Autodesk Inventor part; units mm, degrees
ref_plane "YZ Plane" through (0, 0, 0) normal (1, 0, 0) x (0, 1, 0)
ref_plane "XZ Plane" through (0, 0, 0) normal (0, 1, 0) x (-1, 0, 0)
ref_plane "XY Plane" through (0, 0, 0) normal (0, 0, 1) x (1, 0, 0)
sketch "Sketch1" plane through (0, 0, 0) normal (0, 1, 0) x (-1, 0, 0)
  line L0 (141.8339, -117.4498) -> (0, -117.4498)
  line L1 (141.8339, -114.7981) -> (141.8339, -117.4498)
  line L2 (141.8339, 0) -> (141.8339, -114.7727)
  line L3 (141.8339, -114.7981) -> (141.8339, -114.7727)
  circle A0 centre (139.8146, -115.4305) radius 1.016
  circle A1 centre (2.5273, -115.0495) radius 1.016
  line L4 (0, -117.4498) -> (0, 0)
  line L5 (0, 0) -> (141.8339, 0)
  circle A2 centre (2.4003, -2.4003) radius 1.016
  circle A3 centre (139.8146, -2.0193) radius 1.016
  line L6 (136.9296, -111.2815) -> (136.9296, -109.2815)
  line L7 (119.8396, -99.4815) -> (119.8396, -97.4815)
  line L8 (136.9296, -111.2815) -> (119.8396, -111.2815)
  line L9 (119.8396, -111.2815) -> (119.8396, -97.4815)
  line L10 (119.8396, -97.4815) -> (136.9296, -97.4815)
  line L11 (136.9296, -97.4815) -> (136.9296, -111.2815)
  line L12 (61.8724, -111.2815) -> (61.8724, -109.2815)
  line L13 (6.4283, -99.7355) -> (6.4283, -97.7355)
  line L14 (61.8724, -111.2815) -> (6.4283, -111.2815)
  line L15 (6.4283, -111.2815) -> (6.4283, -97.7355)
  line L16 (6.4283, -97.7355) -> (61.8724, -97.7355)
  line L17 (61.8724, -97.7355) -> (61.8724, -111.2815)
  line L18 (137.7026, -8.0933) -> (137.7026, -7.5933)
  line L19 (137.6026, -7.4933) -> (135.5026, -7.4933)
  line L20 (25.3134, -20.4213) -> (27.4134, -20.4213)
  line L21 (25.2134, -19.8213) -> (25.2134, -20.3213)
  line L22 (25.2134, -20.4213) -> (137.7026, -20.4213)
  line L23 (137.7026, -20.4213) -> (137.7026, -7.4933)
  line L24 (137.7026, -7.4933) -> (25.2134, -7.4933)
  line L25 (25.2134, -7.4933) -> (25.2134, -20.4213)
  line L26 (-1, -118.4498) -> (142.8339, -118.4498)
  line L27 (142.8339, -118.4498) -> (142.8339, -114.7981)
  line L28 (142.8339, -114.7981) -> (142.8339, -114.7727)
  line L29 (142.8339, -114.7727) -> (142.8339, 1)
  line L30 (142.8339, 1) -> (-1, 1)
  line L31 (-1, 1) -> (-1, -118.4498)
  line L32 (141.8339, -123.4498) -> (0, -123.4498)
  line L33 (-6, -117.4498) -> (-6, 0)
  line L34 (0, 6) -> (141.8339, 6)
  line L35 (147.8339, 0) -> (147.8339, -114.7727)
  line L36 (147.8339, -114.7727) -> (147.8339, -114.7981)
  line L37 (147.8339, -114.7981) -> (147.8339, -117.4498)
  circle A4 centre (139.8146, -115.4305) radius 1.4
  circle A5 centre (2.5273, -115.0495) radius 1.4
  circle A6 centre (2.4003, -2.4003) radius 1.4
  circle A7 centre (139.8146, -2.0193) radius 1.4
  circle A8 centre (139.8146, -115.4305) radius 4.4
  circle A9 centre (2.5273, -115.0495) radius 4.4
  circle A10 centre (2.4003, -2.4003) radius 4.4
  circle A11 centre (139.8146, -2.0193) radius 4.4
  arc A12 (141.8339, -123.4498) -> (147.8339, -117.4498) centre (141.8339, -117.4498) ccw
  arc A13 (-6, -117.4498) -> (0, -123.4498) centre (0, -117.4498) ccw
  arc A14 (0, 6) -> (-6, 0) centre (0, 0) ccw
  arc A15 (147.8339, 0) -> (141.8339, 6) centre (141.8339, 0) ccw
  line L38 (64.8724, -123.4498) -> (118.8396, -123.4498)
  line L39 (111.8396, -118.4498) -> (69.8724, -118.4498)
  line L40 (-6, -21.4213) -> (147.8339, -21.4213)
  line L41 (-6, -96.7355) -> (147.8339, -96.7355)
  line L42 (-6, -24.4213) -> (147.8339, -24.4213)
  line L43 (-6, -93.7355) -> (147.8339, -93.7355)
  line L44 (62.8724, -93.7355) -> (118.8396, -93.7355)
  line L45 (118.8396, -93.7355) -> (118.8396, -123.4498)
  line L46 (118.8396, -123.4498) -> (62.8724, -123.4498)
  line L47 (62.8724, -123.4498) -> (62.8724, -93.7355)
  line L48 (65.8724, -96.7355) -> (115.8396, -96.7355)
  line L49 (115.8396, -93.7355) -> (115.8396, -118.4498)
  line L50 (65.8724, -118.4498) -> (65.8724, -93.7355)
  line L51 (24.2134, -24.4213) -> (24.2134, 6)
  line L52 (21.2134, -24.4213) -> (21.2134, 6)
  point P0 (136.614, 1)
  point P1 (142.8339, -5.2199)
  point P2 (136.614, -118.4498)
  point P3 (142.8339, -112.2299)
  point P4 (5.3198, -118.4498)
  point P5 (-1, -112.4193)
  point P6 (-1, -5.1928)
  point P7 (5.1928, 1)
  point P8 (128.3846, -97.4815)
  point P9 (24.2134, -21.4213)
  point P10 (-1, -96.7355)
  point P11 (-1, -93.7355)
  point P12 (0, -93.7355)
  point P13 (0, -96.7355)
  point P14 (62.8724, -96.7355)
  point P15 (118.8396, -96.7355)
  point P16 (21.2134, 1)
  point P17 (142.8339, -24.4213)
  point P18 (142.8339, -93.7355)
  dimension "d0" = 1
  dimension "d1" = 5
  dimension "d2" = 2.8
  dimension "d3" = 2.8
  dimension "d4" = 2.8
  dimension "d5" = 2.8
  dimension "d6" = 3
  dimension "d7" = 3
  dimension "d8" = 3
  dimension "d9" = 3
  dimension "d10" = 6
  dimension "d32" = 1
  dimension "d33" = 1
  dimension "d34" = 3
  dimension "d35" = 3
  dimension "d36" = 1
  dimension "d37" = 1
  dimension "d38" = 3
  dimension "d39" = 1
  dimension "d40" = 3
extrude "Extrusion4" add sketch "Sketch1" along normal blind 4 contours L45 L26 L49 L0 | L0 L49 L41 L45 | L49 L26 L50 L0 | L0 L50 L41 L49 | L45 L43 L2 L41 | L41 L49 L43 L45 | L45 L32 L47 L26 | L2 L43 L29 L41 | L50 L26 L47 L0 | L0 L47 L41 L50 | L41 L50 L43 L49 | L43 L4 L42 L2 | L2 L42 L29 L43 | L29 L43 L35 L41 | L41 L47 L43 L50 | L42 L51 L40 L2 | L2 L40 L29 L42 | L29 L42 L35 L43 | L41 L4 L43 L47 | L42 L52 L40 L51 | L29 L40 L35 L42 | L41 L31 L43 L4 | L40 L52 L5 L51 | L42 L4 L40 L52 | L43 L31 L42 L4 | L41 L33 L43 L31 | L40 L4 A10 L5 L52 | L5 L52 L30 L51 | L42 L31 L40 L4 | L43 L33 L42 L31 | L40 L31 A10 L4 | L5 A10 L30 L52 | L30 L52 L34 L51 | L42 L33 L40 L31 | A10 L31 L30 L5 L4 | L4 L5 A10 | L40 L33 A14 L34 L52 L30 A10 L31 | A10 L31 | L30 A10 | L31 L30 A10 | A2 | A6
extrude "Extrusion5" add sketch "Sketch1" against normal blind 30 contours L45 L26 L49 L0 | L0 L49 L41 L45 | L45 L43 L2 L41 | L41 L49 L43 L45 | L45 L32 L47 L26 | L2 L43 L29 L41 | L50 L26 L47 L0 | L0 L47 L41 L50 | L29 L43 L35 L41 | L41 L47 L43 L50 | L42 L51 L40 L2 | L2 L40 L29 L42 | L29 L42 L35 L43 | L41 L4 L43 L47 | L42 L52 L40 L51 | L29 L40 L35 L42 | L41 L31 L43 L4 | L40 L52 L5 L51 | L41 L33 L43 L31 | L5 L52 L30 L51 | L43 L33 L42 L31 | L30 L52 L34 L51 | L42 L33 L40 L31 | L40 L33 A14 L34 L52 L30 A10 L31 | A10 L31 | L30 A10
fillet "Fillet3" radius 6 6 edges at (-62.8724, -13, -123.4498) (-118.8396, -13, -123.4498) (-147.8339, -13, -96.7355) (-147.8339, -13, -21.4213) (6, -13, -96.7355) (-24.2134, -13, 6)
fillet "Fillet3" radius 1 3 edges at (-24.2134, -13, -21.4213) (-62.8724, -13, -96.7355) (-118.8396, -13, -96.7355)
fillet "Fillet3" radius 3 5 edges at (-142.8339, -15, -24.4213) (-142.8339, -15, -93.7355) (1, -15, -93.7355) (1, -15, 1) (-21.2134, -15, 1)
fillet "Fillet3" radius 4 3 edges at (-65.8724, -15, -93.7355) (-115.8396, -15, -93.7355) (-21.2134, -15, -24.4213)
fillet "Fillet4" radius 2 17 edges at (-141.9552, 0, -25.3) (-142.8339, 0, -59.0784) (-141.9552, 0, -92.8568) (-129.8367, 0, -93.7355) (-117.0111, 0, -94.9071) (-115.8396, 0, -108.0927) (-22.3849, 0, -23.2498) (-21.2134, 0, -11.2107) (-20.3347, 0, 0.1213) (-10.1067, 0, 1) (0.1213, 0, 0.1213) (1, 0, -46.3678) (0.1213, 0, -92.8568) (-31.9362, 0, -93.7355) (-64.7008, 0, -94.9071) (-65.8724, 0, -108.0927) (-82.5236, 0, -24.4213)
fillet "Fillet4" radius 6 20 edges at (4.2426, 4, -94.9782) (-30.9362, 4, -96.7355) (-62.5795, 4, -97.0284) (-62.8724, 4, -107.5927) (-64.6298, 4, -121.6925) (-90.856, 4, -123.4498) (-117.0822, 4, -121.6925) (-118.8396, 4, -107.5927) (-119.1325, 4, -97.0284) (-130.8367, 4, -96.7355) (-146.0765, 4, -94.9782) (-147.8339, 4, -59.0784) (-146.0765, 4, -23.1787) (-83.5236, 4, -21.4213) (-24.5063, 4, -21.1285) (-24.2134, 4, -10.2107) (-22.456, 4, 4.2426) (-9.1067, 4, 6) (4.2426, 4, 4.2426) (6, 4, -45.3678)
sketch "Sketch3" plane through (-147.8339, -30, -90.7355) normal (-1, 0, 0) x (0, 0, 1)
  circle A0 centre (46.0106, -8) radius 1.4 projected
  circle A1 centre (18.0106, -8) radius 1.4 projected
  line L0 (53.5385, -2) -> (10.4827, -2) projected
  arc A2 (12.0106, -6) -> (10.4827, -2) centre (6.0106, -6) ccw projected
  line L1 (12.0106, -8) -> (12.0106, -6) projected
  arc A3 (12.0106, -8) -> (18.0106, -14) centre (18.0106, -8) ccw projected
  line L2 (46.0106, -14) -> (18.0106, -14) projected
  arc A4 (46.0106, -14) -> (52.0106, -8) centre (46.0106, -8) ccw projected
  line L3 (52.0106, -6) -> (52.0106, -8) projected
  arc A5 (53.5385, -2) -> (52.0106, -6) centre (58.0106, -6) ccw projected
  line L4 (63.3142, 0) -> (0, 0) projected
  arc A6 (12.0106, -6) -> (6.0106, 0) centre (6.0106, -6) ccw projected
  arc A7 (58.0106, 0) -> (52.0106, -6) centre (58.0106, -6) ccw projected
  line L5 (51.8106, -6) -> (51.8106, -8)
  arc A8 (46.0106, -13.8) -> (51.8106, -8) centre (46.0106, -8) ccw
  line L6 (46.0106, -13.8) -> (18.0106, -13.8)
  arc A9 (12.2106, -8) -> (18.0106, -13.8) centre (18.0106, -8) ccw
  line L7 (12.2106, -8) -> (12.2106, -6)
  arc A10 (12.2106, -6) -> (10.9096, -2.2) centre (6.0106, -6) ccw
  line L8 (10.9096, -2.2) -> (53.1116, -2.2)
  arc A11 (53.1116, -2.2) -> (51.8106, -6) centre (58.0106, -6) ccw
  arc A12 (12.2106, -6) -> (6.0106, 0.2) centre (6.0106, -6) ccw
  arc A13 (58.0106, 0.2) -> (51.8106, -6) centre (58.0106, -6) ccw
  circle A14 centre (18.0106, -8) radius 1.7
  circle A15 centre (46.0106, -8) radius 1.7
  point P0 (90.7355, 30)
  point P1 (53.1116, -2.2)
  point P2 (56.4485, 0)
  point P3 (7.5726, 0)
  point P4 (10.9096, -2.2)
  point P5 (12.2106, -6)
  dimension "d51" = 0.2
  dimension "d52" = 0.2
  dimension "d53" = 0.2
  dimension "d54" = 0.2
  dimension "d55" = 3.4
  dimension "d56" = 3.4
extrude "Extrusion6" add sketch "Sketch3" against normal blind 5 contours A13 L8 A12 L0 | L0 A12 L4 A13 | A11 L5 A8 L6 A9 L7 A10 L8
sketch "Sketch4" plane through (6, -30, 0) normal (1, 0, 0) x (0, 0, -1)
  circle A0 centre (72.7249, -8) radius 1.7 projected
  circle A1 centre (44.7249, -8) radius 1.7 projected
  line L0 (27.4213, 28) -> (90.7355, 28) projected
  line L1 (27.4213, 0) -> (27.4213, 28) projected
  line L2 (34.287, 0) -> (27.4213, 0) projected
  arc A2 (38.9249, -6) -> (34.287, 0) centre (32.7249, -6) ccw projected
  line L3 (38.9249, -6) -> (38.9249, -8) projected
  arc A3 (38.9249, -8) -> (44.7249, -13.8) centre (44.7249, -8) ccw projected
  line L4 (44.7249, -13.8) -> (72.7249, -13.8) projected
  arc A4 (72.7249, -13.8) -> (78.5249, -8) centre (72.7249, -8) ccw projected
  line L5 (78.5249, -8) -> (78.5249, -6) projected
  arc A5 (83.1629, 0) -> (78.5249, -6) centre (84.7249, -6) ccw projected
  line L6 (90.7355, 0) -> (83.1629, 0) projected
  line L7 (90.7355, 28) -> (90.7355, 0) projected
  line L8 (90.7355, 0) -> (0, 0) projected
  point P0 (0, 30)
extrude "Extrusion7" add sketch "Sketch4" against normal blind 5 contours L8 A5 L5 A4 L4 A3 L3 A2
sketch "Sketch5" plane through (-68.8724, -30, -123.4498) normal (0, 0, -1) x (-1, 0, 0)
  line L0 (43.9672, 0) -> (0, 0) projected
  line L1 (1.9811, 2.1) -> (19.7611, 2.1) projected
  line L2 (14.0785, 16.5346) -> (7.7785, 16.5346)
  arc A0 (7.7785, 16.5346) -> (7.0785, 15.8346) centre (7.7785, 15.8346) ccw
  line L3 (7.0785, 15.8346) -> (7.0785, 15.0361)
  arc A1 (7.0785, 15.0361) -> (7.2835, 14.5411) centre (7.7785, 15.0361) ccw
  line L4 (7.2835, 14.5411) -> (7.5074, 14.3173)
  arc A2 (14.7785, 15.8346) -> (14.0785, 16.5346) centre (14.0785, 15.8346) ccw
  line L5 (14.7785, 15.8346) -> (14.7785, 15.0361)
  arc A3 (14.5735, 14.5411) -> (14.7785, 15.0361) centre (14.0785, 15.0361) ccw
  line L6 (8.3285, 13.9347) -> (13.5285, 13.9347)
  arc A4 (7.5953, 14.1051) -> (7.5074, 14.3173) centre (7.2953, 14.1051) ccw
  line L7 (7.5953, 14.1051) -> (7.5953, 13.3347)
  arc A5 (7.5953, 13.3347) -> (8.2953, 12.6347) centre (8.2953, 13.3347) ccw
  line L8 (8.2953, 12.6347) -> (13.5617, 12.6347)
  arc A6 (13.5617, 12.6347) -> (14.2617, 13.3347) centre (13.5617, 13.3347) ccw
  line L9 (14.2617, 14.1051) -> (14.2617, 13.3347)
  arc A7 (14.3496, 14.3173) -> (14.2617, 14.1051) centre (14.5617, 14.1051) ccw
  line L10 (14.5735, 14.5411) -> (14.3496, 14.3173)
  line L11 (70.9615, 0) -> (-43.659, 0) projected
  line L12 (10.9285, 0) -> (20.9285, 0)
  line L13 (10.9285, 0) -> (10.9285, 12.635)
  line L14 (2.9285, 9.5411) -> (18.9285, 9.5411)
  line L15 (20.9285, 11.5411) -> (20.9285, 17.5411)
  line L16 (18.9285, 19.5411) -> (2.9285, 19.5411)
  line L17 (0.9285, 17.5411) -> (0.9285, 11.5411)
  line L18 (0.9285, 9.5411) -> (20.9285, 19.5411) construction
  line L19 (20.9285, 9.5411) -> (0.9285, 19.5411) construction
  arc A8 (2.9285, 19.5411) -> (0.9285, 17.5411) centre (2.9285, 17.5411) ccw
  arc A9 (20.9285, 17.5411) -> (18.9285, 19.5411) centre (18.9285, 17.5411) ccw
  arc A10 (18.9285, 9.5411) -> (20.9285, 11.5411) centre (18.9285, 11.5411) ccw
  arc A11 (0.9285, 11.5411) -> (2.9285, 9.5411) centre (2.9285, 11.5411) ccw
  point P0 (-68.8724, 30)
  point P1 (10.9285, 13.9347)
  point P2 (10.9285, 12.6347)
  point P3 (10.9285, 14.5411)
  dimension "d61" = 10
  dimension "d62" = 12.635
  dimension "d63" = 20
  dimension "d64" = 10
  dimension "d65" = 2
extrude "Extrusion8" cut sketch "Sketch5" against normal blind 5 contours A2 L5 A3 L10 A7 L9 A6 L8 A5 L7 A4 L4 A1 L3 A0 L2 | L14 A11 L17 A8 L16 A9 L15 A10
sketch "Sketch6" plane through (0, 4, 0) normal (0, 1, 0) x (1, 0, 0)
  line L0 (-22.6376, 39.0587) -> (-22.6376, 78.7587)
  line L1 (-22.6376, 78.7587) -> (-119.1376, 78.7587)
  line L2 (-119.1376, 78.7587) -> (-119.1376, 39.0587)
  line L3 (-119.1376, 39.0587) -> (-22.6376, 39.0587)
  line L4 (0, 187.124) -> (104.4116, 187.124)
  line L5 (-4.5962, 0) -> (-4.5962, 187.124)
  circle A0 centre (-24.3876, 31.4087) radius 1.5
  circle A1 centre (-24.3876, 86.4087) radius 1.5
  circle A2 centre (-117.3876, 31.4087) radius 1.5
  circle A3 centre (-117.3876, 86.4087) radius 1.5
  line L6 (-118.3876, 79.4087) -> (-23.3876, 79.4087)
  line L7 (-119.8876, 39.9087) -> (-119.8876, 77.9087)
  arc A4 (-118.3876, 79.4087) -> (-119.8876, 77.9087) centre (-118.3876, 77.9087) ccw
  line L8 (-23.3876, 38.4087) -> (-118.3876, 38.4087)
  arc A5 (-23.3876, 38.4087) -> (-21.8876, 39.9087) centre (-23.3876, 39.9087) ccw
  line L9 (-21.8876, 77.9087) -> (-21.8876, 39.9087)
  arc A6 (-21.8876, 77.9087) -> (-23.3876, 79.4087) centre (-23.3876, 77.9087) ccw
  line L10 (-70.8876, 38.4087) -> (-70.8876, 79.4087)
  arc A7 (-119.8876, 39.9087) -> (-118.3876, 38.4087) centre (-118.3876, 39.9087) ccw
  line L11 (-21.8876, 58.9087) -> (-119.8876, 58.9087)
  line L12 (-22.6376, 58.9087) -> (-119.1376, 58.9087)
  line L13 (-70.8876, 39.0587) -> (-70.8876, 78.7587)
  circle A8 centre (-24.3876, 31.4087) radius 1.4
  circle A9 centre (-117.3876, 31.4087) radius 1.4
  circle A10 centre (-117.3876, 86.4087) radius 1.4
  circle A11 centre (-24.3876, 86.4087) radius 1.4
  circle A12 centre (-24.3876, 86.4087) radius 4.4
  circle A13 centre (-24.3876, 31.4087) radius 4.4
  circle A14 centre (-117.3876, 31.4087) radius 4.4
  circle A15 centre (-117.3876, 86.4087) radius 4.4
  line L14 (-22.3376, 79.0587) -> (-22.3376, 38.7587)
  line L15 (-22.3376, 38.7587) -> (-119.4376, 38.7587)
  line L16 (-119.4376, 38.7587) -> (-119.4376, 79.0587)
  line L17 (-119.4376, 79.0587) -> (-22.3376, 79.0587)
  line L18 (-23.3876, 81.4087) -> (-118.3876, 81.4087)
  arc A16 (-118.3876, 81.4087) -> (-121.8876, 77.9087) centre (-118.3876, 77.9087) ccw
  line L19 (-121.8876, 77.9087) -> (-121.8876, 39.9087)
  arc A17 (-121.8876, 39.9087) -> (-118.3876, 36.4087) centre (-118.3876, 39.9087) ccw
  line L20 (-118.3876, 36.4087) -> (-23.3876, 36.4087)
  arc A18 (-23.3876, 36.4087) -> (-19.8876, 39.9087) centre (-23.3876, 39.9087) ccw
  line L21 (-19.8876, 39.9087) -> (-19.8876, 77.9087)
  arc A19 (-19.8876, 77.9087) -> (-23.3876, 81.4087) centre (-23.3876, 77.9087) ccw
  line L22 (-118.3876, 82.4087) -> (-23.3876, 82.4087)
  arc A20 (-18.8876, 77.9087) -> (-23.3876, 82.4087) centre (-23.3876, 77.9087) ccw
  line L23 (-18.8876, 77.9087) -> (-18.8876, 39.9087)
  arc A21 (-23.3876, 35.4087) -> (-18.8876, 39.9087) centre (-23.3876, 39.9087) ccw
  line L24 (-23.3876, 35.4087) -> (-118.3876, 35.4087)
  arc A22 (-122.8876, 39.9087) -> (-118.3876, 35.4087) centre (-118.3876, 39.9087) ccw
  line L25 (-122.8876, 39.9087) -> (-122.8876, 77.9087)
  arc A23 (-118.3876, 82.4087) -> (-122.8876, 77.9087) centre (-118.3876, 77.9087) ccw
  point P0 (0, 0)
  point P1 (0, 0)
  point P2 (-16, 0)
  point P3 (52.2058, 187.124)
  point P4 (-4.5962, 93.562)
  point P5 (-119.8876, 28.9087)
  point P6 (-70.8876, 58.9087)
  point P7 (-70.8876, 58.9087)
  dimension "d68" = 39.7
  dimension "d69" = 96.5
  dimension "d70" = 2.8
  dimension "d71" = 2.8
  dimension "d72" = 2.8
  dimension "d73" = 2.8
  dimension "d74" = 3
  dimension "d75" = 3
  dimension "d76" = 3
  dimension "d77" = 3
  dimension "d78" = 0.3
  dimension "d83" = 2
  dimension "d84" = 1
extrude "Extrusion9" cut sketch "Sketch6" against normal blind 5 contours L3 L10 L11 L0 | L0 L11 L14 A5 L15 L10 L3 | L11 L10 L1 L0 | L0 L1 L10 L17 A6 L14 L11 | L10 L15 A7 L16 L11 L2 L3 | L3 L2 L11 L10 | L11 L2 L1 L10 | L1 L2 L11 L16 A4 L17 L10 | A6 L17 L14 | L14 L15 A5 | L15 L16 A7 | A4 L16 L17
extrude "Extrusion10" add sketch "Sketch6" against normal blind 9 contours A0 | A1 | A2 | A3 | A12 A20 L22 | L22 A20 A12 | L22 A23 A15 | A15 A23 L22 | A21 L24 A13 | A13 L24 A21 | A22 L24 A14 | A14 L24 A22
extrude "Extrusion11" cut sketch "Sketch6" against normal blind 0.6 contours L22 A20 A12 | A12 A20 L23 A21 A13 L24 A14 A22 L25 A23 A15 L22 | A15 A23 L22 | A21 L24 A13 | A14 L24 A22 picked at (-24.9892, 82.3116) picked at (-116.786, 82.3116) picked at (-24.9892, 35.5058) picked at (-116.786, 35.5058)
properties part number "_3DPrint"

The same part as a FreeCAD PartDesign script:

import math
import FreeCAD as App
import Part
import Sketcher
Q = App.Units.Quantity


def edges_at(feature, points):
    """Names of the edges that pass closest to the given points."""
    edges = feature.Shape.Edges
    near = lambda p: min(range(len(edges)), key=lambda i: edges[i].distToShape(Part.Vertex(*p))[0])
    return sorted({f"Edge{near(p) + 1}" for p in points})


def add_polygon(sketch, points):
    """Adds a closed chain of lines whose ends are joined by coincident constraints."""
    first, n = sketch.GeometryCount, len(points)
    for a, b in zip(points, points[1:] + points[:1]):
        sketch.addGeometry(Part.LineSegment(App.Vector(*a, 0), App.Vector(*b, 0)), False)
    for i in range(n):
        sketch.addConstraint(Sketcher.Constraint("Coincident", first + i, 2, first + (i + 1) % n, 1))

doc = App.newDocument("Part")
body = doc.addObject("PartDesign::Body", "Body")

# Sketch on XZ plane
sketch1 = body.newObject("Sketcher::SketchObject", "Sketch")
sketch1.AttachmentSupport = (doc.getObject("XZ_Plane"), [""])
sketch1.MapMode = "FlatFace"
sketch1.addGeometry(Part.LineSegment(App.Vector(-119, -97, 0), App.Vector(-148, -97, 0)), False)
sketch1.addGeometry(Part.LineSegment(App.Vector(-148, -97, 0), App.Vector(-148, -21, 0)), False)
sketch1.addGeometry(Part.LineSegment(App.Vector(-148, -21, 0), App.Vector(-24, -21, 0)), False)
sketch1.addGeometry(Part.LineSegment(App.Vector(-24, -21, 0), App.Vector(-24, 6, 0)), False)
sketch1.addGeometry(Part.LineSegment(App.Vector(-24, 6, 0), App.Vector(0, 6, 0)), False)
sketch1.addGeometry(Part.ArcOfCircle(Part.Circle(App.Vector(0, 0, 0), App.Vector(0, 0, 1), 6), math.radians(0), math.radians(90)), False)
sketch1.addGeometry(Part.LineSegment(App.Vector(6, 0, 0), App.Vector(6, -97, 0)), False)
sketch1.addGeometry(Part.LineSegment(App.Vector(6, -97, 0), App.Vector(-63, -97, 0)), False)
sketch1.addGeometry(Part.LineSegment(App.Vector(-63, -97, 0), App.Vector(-63, -123, 0)), False)
sketch1.addGeometry(Part.LineSegment(App.Vector(-63, -123, 0), App.Vector(-119, -123, 0)), False)
sketch1.addGeometry(Part.LineSegment(App.Vector(-119, -123, 0), App.Vector(-119, -97, 0)), False)
sketch1.addConstraint(Sketcher.Constraint("Coincident", 0, 2, 1, 1))
sketch1.addConstraint(Sketcher.Constraint("Coincident", 1, 2, 2, 1))
sketch1.addConstraint(Sketcher.Constraint("Coincident", 2, 2, 3, 1))
sketch1.addConstraint(Sketcher.Constraint("Coincident", 3, 2, 4, 1))
sketch1.addConstraint(Sketcher.Constraint("Tangent", 4, 2, 5, 2))
sketch1.addConstraint(Sketcher.Constraint("Tangent", 5, 1, 6, 1))
sketch1.addConstraint(Sketcher.Constraint("Coincident", 6, 2, 7, 1))
sketch1.addConstraint(Sketcher.Constraint("Coincident", 7, 2, 8, 1))
sketch1.addConstraint(Sketcher.Constraint("Coincident", 8, 2, 9, 1))
sketch1.addConstraint(Sketcher.Constraint("Coincident", 9, 2, 10, 1))
sketch1.addConstraint(Sketcher.Constraint("Coincident", 10, 2, 0, 1))
sketch1.addConstraint(Sketcher.Constraint("Horizontal", 0))
sketch1.addConstraint(Sketcher.Constraint("Vertical", 1))
sketch1.addConstraint(Sketcher.Constraint("Horizontal", 2))
sketch1.addConstraint(Sketcher.Constraint("Vertical", 3))
sketch1.addConstraint(Sketcher.Constraint("Horizontal", 4))
sketch1.addConstraint(Sketcher.Constraint("Vertical", 6))
sketch1.addConstraint(Sketcher.Constraint("Horizontal", 7))
sketch1.addConstraint(Sketcher.Constraint("Vertical", 8))
sketch1.addConstraint(Sketcher.Constraint("Horizontal", 9))
sketch1.addConstraint(Sketcher.Constraint("Vertical", 10))
sketch1.addConstraint(Sketcher.Constraint("Coincident", 5, 3, -1, 1))
sketch1.addConstraint(Sketcher.Constraint("Horizontal", 0, 2, 6, 2))
sketch1.addConstraint(Sketcher.Constraint("Radius", 5, Q("6 mm")))
sketch1.addConstraint(Sketcher.Constraint("DistanceX", 0, 2, 0, 1, Q("28.9943 mm")))
sketch1.addConstraint(Sketcher.Constraint("DistanceX", 2, 1, 2, 2, Q("123.6205 mm")))
sketch1.addConstraint(Sketcher.Constraint("DistanceX", 4, 1, 4, 2, Q("24.2134 mm")))
sketch1.addConstraint(Sketcher.Constraint("DistanceX", 7, 2, 7, 1, Q("68.8724 mm")))
sketch1.addConstraint(Sketcher.Constraint("DistanceY", 1, 1, 1, 2, Q("75.3142 mm")))
sketch1.addConstraint(Sketcher.Constraint("DistanceY", 3, 1, 3, 2, Q("27.4213 mm")))
sketch1.addConstraint(Sketcher.Constraint("DistanceY", 8, 2, 8, 1, Q("26.7143 mm")))
pad1 = body.newObject("PartDesign::Pad", "Pad")
pad1.Profile = sketch1
pad1.Length = 4
pad1.Reversed = True

# Sketch on XZ plane
sketch2 = body.newObject("Sketcher::SketchObject", "Sketch001")
sketch2.AttachmentSupport = (doc.getObject("XZ_Plane"), [""])
sketch2.MapMode = "FlatFace"
sketch2.addGeometry(Part.LineSegment(App.Vector(-119, -97, 0), App.Vector(-148, -97, 0)), False)  # 0
sketch2.addGeometry(Part.LineSegment(App.Vector(-148, -97, 0), App.Vector(-148, -21, 0)), False)  # 1
sketch2.addGeometry(Part.LineSegment(App.Vector(-148, -21, 0), App.Vector(-24, -21, 0)), False)  # 2
sketch2.addGeometry(Part.LineSegment(App.Vector(-24, -21, 0), App.Vector(-24, 6, 0)), False)  # 3
sketch2.addGeometry(Part.LineSegment(App.Vector(-24, 6, 0), App.Vector(0, 6, 0)), False)  # 4
sketch2.addGeometry(Part.ArcOfCircle(Part.Circle(App.Vector(0, 0, 0), App.Vector(0, 0, 1), 6), math.radians(0), math.radians(90)), False)  # 5
sketch2.addGeometry(Part.LineSegment(App.Vector(6, 0, 0), App.Vector(6, -97, 0)), False)  # 6
sketch2.addGeometry(Part.LineSegment(App.Vector(6, -97, 0), App.Vector(-63, -97, 0)), False)  # 7
sketch2.addGeometry(Part.LineSegment(App.Vector(-63, -97, 0), App.Vector(-63, -123, 0)), False)  # 8
sketch2.addGeometry(Part.LineSegment(App.Vector(-63, -123, 0), App.Vector(-119, -123, 0)), False)  # 9
sketch2.addGeometry(Part.LineSegment(App.Vector(-119, -123, 0), App.Vector(-119, -97, 0)), False)  # 10
add_polygon(sketch2, [(-116, -118), (-66, -118), (-66, -94), (1, -94), (1, 1), (-21, 1), (-21, -24), (-143, -24), (-143, -94), (-116, -94)])  # lines 11-20
sketch2.addConstraint(Sketcher.Constraint("Coincident", 0, 2, 1, 1))
sketch2.addConstraint(Sketcher.Constraint("Coincident", 1, 2, 2, 1))
sketch2.addConstraint(Sketcher.Constraint("Coincident", 2, 2, 3, 1))
sketch2.addConstraint(Sketcher.Constraint("Coincident", 3, 2, 4, 1))
sketch2.addConstraint(Sketcher.Constraint("Tangent", 4, 2, 5, 2))
sketch2.addConstraint(Sketcher.Constraint("Tangent", 5, 1, 6, 1))
sketch2.addConstraint(Sketcher.Constraint("Coincident", 6, 2, 7, 1))
sketch2.addConstraint(Sketcher.Constraint("Coincident", 7, 2, 8, 1))
sketch2.addConstraint(Sketcher.Constraint("Coincident", 8, 2, 9, 1))
sketch2.addConstraint(Sketcher.Constraint("Coincident", 9, 2, 10, 1))
sketch2.addConstraint(Sketcher.Constraint("Coincident", 10, 2, 0, 1))
sketch2.addConstraint(Sketcher.Constraint("Horizontal", 0))
sketch2.addConstraint(Sketcher.Constraint("Vertical", 1))
sketch2.addConstraint(Sketcher.Constraint("Horizontal", 2))
sketch2.addConstraint(Sketcher.Constraint("Vertical", 3))
sketch2.addConstraint(Sketcher.Constraint("Horizontal", 4))
sketch2.addConstraint(Sketcher.Constraint("Vertical", 6))
sketch2.addConstraint(Sketcher.Constraint("Horizontal", 7))
sketch2.addConstraint(Sketcher.Constraint("Vertical", 8))
sketch2.addConstraint(Sketcher.Constraint("Horizontal", 9))
sketch2.addConstraint(Sketcher.Constraint("Vertical", 10))
sketch2.addConstraint(Sketcher.Constraint("Horizontal", 11))
sketch2.addConstraint(Sketcher.Constraint("Vertical", 12))
sketch2.addConstraint(Sketcher.Constraint("Horizontal", 13))
sketch2.addConstraint(Sketcher.Constraint("Vertical", 14))
sketch2.addConstraint(Sketcher.Constraint("Horizontal", 15))
sketch2.addConstraint(Sketcher.Constraint("Vertical", 16))
sketch2.addConstraint(Sketcher.Constraint("Horizontal", 17))
sketch2.addConstraint(Sketcher.Constraint("Vertical", 18))
sketch2.addConstraint(Sketcher.Constraint("Horizontal", 19))
sketch2.addConstraint(Sketcher.Constraint("Vertical", 20))
sketch2.addConstraint(Sketcher.Constraint("Coincident", 5, 3, -1, 1))
sketch2.addConstraint(Sketcher.Constraint("Horizontal", 0, 2, 6, 2))
sketch2.addConstraint(Sketcher.Constraint("Horizontal", 13, 2, 18, 2))
sketch2.addConstraint(Sketcher.Constraint("Radius", 5, Q("6 mm")))
sketch2.addConstraint(Sketcher.Constraint("DistanceX", -1, 1, 13, 2, Q("1 mm")))
sketch2.addConstraint(Sketcher.Constraint("DistanceY", -1, 1, 14, 2, Q("1 mm")))
sketch2.addConstraint(Sketcher.Constraint("DistanceX", 11, 2, 8, 2, Q("3 mm")))
sketch2.addConstraint(Sketcher.Constraint("DistanceY", 8, 2, 11, 2, Q("5 mm")))
sketch2.addConstraint(Sketcher.Constraint("DistanceY", 7, 2, 12, 2, Q("3 mm")))
sketch2.addConstraint(Sketcher.Constraint("DistanceX", 3, 2, 15, 2, Q("3 mm")))
sketch2.addConstraint(Sketcher.Constraint("DistanceY", 16, 2, 2, 2, Q("3 mm")))
sketch2.addConstraint(Sketcher.Constraint("DistanceX", 1, 2, 17, 2, Q("5 mm")))
sketch2.addConstraint(Sketcher.Constraint("DistanceX", 10, 2, 19, 2, Q("3 mm")))
sketch2.addConstraint(Sketcher.Constraint("DistanceX", 0, 2, 0, 1, Q("28.9943 mm")))
sketch2.addConstraint(Sketcher.Constraint("DistanceX", 2, 1, 2, 2, Q("123.6205 mm")))
sketch2.addConstraint(Sketcher.Constraint("DistanceX", 4, 1, 4, 2, Q("24.2134 mm")))
sketch2.addConstraint(Sketcher.Constraint("DistanceX", 7, 2, 7, 1, Q("68.8724 mm")))
sketch2.addConstraint(Sketcher.Constraint("DistanceY", 1, 1, 1, 2, Q("75.3142 mm")))
sketch2.addConstraint(Sketcher.Constraint("DistanceY", 3, 1, 3, 2, Q("27.4213 mm")))
sketch2.addConstraint(Sketcher.Constraint("DistanceY", 8, 2, 8, 1, Q("26.7143 mm")))
pad2 = body.newObject("PartDesign::Pad", "Pad001")
pad2.Profile = sketch2
pad2.Length = 30
doc.recompute()

fillet = body.newObject("PartDesign::Fillet", "Fillet")
fillet.Base = (pad2, edges_at(pad2, [
    (-62.872, -13, -123.45),
    (-118.84, -13, -123.45),
    (-147.834, -13, -96.736),
    (-147.834, -13, -21.421),
    (6, -13, -96.736),
    (-24.213, -13, 6),
]))
fillet.Radius = 6
doc.recompute()

fillet2 = body.newObject("PartDesign::Fillet", "Fillet001")
fillet2.Base = (fillet, edges_at(fillet, [(-24.213, -13, -21.421), (-62.872, -13, -96.736), (-118.84, -13, -96.736)]))
fillet2.Radius = 1
doc.recompute()

fillet3 = body.newObject("PartDesign::Fillet", "Fillet002")
fillet3.Base = (fillet2, edges_at(fillet2, [
    (-142.834, -15, -24.421),
    (-142.834, -15, -93.736),
    (1, -15, -93.736),
    (1, -15, 1),
    (-21.213, -15, 1),
]))
fillet3.Radius = 3
doc.recompute()

fillet4 = body.newObject("PartDesign::Fillet", "Fillet003")
fillet4.Base = (fillet3, edges_at(fillet3, [(-65.872, -15, -93.736), (-115.84, -15, -93.736), (-21.213, -15, -24.421)]))
fillet4.Radius = 4
doc.recompute()

fillet5 = body.newObject("PartDesign::Fillet", "Fillet004")
fillet5.Base = (fillet4, edges_at(fillet4, [
    (-141.955, 0, -25.3),
    (-142.834, 0, -59.078),
    (-141.955, 0, -92.857),
    (-129.837, 0, -93.736),
    (-117.011, 0, -94.907),
    (-115.84, 0, -108.093),
    (-22.385, 0, -23.25),
    (-21.213, 0, -11.211),
    (-20.335, 0, 0.121),
    (-10.107, 0, 1),
    (0.121, 0, 0.121),
    (1, 0, -46.368),
    (0.121, 0, -92.857),
    (-31.936, 0, -93.736),
    (-64.701, 0, -94.907),
    (-65.872, 0, -108.093),
    (-82.524, 0, -24.421),
]))
fillet5.Radius = 2
doc.recompute()

fillet6 = body.newObject("PartDesign::Fillet", "Fillet005")
fillet6.Base = (fillet5, edges_at(fillet5, [
    (4.243, 4, -94.978),
    (-30.936, 4, -96.736),
    (-62.58, 4, -97.028),
    (-62.872, 4, -107.593),
    (-64.63, 4, -121.692),
    (-90.856, 4, -123.45),
    (-117.082, 4, -121.692),
    (-118.84, 4, -107.593),
    (-119.132, 4, -97.028),
    (-130.837, 4, -96.736),
    (-146.077, 4, -94.978),
    (-147.834, 4, -59.078),
    (-146.077, 4, -23.179),
    (-83.524, 4, -21.421),
    (-24.506, 4, -21.128),
    (-24.213, 4, -10.211),
    (-22.456, 4, 4.243),
    (-9.107, 4, 6),
    (4.243, 4, 4.243),
    (6, 4, -45.368),
]))
fillet6.Radius = 6

# Sketch on YZ plane
sketch3 = body.newObject("Sketcher::SketchObject", "Sketch002")
sketch3.AttachmentSupport = (doc.getObject("YZ_Plane"), [""])
sketch3.MapMode = "FlatFace"
sketch3.AttachmentOffset = App.Placement(App.Vector(0, 0, -147.8339), App.Rotation())
sketch3.addGeometry(Part.ArcOfCircle(Part.Circle(App.Vector(-36, -32.7, 0), App.Vector(0, 0, 1), 6.2), math.radians(-52), math.radians(-15)), False)
sketch3.addGeometry(Part.LineSegment(App.Vector(-30, -34.3, 0), App.Vector(-30, -83.2, 0)), False)
sketch3.addGeometry(Part.ArcOfCircle(Part.Circle(App.Vector(-36, -84.7, 0), App.Vector(0, 0, 1), 6.2), math.radians(15), math.radians(52)), False)
sketch3.addGeometry(Part.ArcOfCircle(Part.Circle(App.Vector(-36, -84.7, 0), App.Vector(0, 0, 1), 6.2), math.radians(52), math.radians(90)), False)
sketch3.addGeometry(Part.LineSegment(App.Vector(-36, -78.5, 0), App.Vector(-38, -78.5, 0)), False)
sketch3.addGeometry(Part.ArcOfCircle(Part.Circle(App.Vector(-38, -72.7, 0), App.Vector(0, 0, 1), 5.8), math.radians(180), math.radians(270)), False)
sketch3.addGeometry(Part.LineSegment(App.Vector(-43.8, -72.7, 0), App.Vector(-43.8, -44.7, 0)), False)
sketch3.addGeometry(Part.ArcOfCircle(Part.Circle(App.Vector(-38, -44.7, 0), App.Vector(0, 0, 1), 5.8), math.radians(90), math.radians(180)), False)
sketch3.addGeometry(Part.LineSegment(App.Vector(-38, -38.9, 0), App.Vector(-36, -38.9, 0)), False)
sketch3.addGeometry(Part.ArcOfCircle(Part.Circle(App.Vector(-36, -32.7, 0), App.Vector(0, 0, 1), 6.2), math.radians(-90), math.radians(-52)), False)
sketch3.addGeometry(Part.Circle(App.Vector(-38, -44.7, 0), App.Vector(0, 0, 1), 1.7), False)
sketch3.addGeometry(Part.Circle(App.Vector(-38, -72.7, 0), App.Vector(0, 0, 1), 1.7), False)
sketch3.addConstraint(Sketcher.Constraint("Coincident", 0, 2, 1, 1))
sketch3.addConstraint(Sketcher.Constraint("Coincident", 1, 2, 2, 1))
sketch3.addConstraint(Sketcher.Constraint("Tangent", 2, 2, 3, 1))
sketch3.addConstraint(Sketcher.Constraint("Tangent", 3, 2, 4, 1))
sketch3.addConstraint(Sketcher.Constraint("Tangent", 4, 2, 5, 2))
sketch3.addConstraint(Sketcher.Constraint("Tangent", 5, 1, 6, 1))
sketch3.addConstraint(Sketcher.Constraint("Tangent", 6, 2, 7, 2))
sketch3.addConstraint(Sketcher.Constraint("Tangent", 7, 1, 8, 1))
sketch3.addConstraint(Sketcher.Constraint("Tangent", 8, 2, 9, 1))
sketch3.addConstraint(Sketcher.Constraint("Tangent", 9, 2, 0, 1))
sketch3.addConstraint(Sketcher.Constraint("Vertical", 1))
sketch3.addConstraint(Sketcher.Constraint("Horizontal", 4))
sketch3.addConstraint(Sketcher.Constraint("Vertical", 6))
sketch3.addConstraint(Sketcher.Constraint("Horizontal", 8))
sketch3.addConstraint(Sketcher.Constraint("Coincident", 10, 3, 7, 3))
sketch3.addConstraint(Sketcher.Constraint("Coincident", 11, 3, 5, 3))
sketch3.addConstraint(Sketcher.Constraint("Equal", 0, 2))
sketch3.addConstraint(Sketcher.Constraint("Equal", 2, 3))
sketch3.addConstraint(Sketcher.Constraint("Equal", 5, 7))
sketch3.addConstraint(Sketcher.Constraint("Equal", 3, 9))
sketch3.addConstraint(Sketcher.Constraint("Equal", 10, 11))
sketch3.addConstraint(Sketcher.Constraint("Vertical", 0, 3, 2, 3))
sketch3.addConstraint(Sketcher.Constraint("Vertical", 2, 2, 9, 2))
sketch3.addConstraint(Sketcher.Constraint("Diameter", 10, Q("3.4 mm")))
sketch3.addConstraint(Sketcher.Constraint("Radius", 0, Q("6.2 mm")))
sketch3.addConstraint(Sketcher.Constraint("Radius", 5, Q("5.8 mm")))
sketch3.addConstraint(Sketcher.Constraint("DistanceX", 4, 2, 4, 1, Q("2 mm")))
sketch3.addConstraint(Sketcher.Constraint("DistanceY", 6, 1, 6, 2, Q("28 mm")))
sketch3.addConstraint(Sketcher.Constraint("DistanceX", 0, 3, -1, 1, Q("36 mm")))
sketch3.addConstraint(Sketcher.Constraint("DistanceX", 0, 2, -1, 1, Q("30 mm")))
sketch3.addConstraint(Sketcher.Constraint("DistanceX", 2, 2, -1, 1, Q("32.2 mm")))
sketch3.addConstraint(Sketcher.Constraint("DistanceY", 0, 3, -1, 1, Q("32.725 mm")))
pad3 = body.newObject("PartDesign::Pad", "Pad002")
pad3.Profile = sketch3
pad3.Length = 5

# Sketch on YZ plane
sketch4 = body.newObject("Sketcher::SketchObject", "Sketch003")
sketch4.AttachmentSupport = (doc.getObject("YZ_Plane"), [""])
sketch4.MapMode = "FlatFace"
sketch4.AttachmentOffset = App.Placement(App.Vector(0, 0, 6), App.Rotation())
sketch4.addGeometry(Part.LineSegment(App.Vector(-30, -83.2, 0), App.Vector(-30, -34.3, 0)), False)
sketch4.addGeometry(Part.ArcOfCircle(Part.Circle(App.Vector(-36, -32.7, 0), App.Vector(0, 0, 1), 6.2), math.radians(-90), math.radians(-15)), False)
sketch4.addGeometry(Part.LineSegment(App.Vector(-36, -38.9, 0), App.Vector(-38, -38.9, 0)), False)
sketch4.addGeometry(Part.ArcOfCircle(Part.Circle(App.Vector(-38, -44.7, 0), App.Vector(0, 0, 1), 5.8), math.radians(90), math.radians(180)), False)
sketch4.addGeometry(Part.LineSegment(App.Vector(-43.8, -44.7, 0), App.Vector(-43.8, -72.7, 0)), False)
sketch4.addGeometry(Part.ArcOfCircle(Part.Circle(App.Vector(-38, -72.7, 0), App.Vector(0, 0, 1), 5.8), math.radians(180), math.radians(270)), False)
sketch4.addGeometry(Part.LineSegment(App.Vector(-38, -78.5, 0), App.Vector(-36, -78.5, 0)), False)
sketch4.addGeometry(Part.ArcOfCircle(Part.Circle(App.Vector(-36, -84.7, 0), App.Vector(0, 0, 1), 6.2), math.radians(15), math.radians(90)), False)
sketch4.addGeometry(Part.Circle(App.Vector(-38, -44.7, 0), App.Vector(0, 0, 1), 1.7), False)
sketch4.addGeometry(Part.Circle(App.Vector(-38, -72.7, 0), App.Vector(0, 0, 1), 1.7), False)
sketch4.addConstraint(Sketcher.Constraint("Coincident", 0, 2, 1, 2))
sketch4.addConstraint(Sketcher.Constraint("Tangent", 1, 1, 2, 1))
sketch4.addConstraint(Sketcher.Constraint("Tangent", 2, 2, 3, 1))
sketch4.addConstraint(Sketcher.Constraint("Tangent", 3, 2, 4, 1))
sketch4.addConstraint(Sketcher.Constraint("Tangent", 4, 2, 5, 1))
sketch4.addConstraint(Sketcher.Constraint("Tangent", 5, 2, 6, 1))
sketch4.addConstraint(Sketcher.Constraint("Tangent", 6, 2, 7, 2))
sketch4.addConstraint(Sketcher.Constraint("Coincident", 7, 1, 0, 1))
sketch4.addConstraint(Sketcher.Constraint("Vertical", 0))
sketch4.addConstraint(Sketcher.Constraint("Horizontal", 2))
sketch4.addConstraint(Sketcher.Constraint("Vertical", 4))
sketch4.addConstraint(Sketcher.Constraint("Horizontal", 6))
sketch4.addConstraint(Sketcher.Constraint("Coincident", 8, 3, 3, 3))
sketch4.addConstraint(Sketcher.Constraint("Coincident", 9, 3, 5, 3))
sketch4.addConstraint(Sketcher.Constraint("Equal", 3, 5))
sketch4.addConstraint(Sketcher.Constraint("Equal", 1, 7))
sketch4.addConstraint(Sketcher.Constraint("Equal", 8, 9))
sketch4.addConstraint(Sketcher.Constraint("Vertical", 1, 3, 7, 3))
sketch4.addConstraint(Sketcher.Constraint("Diameter", 8, Q("3.4 mm")))
sketch4.addConstraint(Sketcher.Constraint("Radius", 1, Q("6.2 mm")))
sketch4.addConstraint(Sketcher.Constraint("Radius", 3, Q("5.8 mm")))
sketch4.addConstraint(Sketcher.Constraint("DistanceX", 2, 2, 2, 1, Q("2 mm")))
sketch4.addConstraint(Sketcher.Constraint("DistanceY", 4, 2, 4, 1, Q("28 mm")))
sketch4.addConstraint(Sketcher.Constraint("DistanceX", 1, 3, -1, 1, Q("36 mm")))
sketch4.addConstraint(Sketcher.Constraint("DistanceX", 0, 2, -1, 1, Q("30 mm")))
sketch4.addConstraint(Sketcher.Constraint("DistanceY", 1, 3, -1, 1, Q("32.725 mm")))
pad4 = body.newObject("PartDesign::Pad", "Pad003")
pad4.Profile = sketch4
pad4.Length = 5
pad4.Reversed = True

# Sketch on XY plane
sketch5 = body.newObject("Sketcher::SketchObject", "Sketch004")
sketch5.AttachmentSupport = (doc.getObject("XY_Plane"), [""])
sketch5.MapMode = "FlatFace"
sketch5.AttachmentOffset = App.Placement(App.Vector(0, 0, -123.4498), App.Rotation())
sketch5.addGeometry(Part.LineSegment(App.Vector(-71.8, -20.5, 0), App.Vector(-79.8, -20.5, 0)), False)
sketch5.addGeometry(Part.LineSegment(App.Vector(-79.8, -20.5, 0), App.Vector(-87.8, -20.5, 0)), False)
sketch5.addGeometry(Part.ArcOfCircle(Part.Circle(App.Vector(-87.8, -18.5, 0), App.Vector(0, 0, 1), 2), math.radians(180), math.radians(270)), False)
sketch5.addGeometry(Part.LineSegment(App.Vector(-89.8, -18.5, 0), App.Vector(-89.8, -12.5, 0)), False)
sketch5.addGeometry(Part.ArcOfCircle(Part.Circle(App.Vector(-87.8, -12.5, 0), App.Vector(0, 0, 1), 2), math.radians(90), math.radians(180)), False)
sketch5.addGeometry(Part.LineSegment(App.Vector(-87.8, -10.5, 0), App.Vector(-71.8, -10.5, 0)), False)
sketch5.addGeometry(Part.ArcOfCircle(Part.Circle(App.Vector(-71.8, -12.5, 0), App.Vector(0, 0, 1), 2), math.radians(0), math.radians(90)), False)
sketch5.addGeometry(Part.LineSegment(App.Vector(-69.8, -12.5, 0), App.Vector(-69.8, -18.5, 0)), False)
sketch5.addGeometry(Part.ArcOfCircle(Part.Circle(App.Vector(-71.8, -18.5, 0), App.Vector(0, 0, 1), 2), math.radians(-90), math.radians(0)), False)
sketch5.addConstraint(Sketcher.Constraint("Coincident", 0, 2, 1, 1))
sketch5.addConstraint(Sketcher.Constraint("Tangent", 1, 2, 2, 2))
sketch5.addConstraint(Sketcher.Constraint("Tangent", 2, 1, 3, 1))
sketch5.addConstraint(Sketcher.Constraint("Tangent", 3, 2, 4, 2))
sketch5.addConstraint(Sketcher.Constraint("Tangent", 4, 1, 5, 1))
sketch5.addConstraint(Sketcher.Constraint("Tangent", 5, 2, 6, 2))
sketch5.addConstraint(Sketcher.Constraint("Tangent", 6, 1, 7, 1))
sketch5.addConstraint(Sketcher.Constraint("Tangent", 7, 2, 8, 2))
sketch5.addConstraint(Sketcher.Constraint("Tangent", 8, 1, 0, 1))
sketch5.addConstraint(Sketcher.Constraint("Horizontal", 0))
sketch5.addConstraint(Sketcher.Constraint("Horizontal", 1))
sketch5.addConstraint(Sketcher.Constraint("Vertical", 3))
sketch5.addConstraint(Sketcher.Constraint("Horizontal", 5))
sketch5.addConstraint(Sketcher.Constraint("Vertical", 7))
sketch5.addConstraint(Sketcher.Constraint("Equal", 2, 4))
sketch5.addConstraint(Sketcher.Constraint("Equal", 4, 6))
sketch5.addConstraint(Sketcher.Constraint("Equal", 6, 8))
sketch5.addConstraint(Sketcher.Constraint("Equal", 0, 1))
sketch5.addConstraint(Sketcher.Constraint("Radius", 2, Q("2 mm")))
sketch5.addConstraint(Sketcher.Constraint("DistanceX", 2, 1, 0, 2, Q("10 mm")))
sketch5.addConstraint(Sketcher.Constraint("DistanceY", 1, 2, 4, 1, Q("10 mm")))
sketch5.addConstraint(Sketcher.Constraint("DistanceX", 2, 3, -1, 1, Q("87.801 mm")))
sketch5.addConstraint(Sketcher.Constraint("DistanceY", 2, 3, -1, 1, Q("18.459 mm")))
pocket1 = body.newObject("PartDesign::Pocket", "Pocket")
pocket1.Profile = sketch5
pocket1.Length = 5
pocket1.Reversed = True

# Sketch on XZ plane
sketch6 = body.newObject("Sketcher::SketchObject", "Sketch005")
sketch6.AttachmentSupport = (doc.getObject("XZ_Plane"), [""])
sketch6.MapMode = "FlatFace"
sketch6.AttachmentOffset = App.Placement(App.Vector(0, 0, -4), App.Rotation())
add_polygon(sketch6, [(-22, -79), (-119, -79), (-119, -39), (-22, -39)])  # lines 0-3
sketch6.addConstraint(Sketcher.Constraint("Horizontal", 0))
sketch6.addConstraint(Sketcher.Constraint("Vertical", 1))
sketch6.addConstraint(Sketcher.Constraint("Horizontal", 2))
sketch6.addConstraint(Sketcher.Constraint("Vertical", 3))
sketch6.addConstraint(Sketcher.Constraint("DistanceX", 0, 2, 0, 1, Q("97.1 mm")))
sketch6.addConstraint(Sketcher.Constraint("DistanceY", 1, 1, 1, 2, Q("40.3 mm")))
sketch6.addConstraint(Sketcher.Constraint("DistanceX", 0, 2, -1, 1, Q("119.4376 mm")))
sketch6.addConstraint(Sketcher.Constraint("DistanceY", 0, 2, -1, 1, Q("79.0587 mm")))
pocket2 = body.newObject("PartDesign::Pocket", "Pocket001")
pocket2.Profile = sketch6
pocket2.Length = 5
pocket2.Reversed = True

# Sketch on XZ plane
sketch7 = body.newObject("Sketcher::SketchObject", "Sketch006")
sketch7.AttachmentSupport = (doc.getObject("XZ_Plane"), [""])
sketch7.MapMode = "FlatFace"
sketch7.AttachmentOffset = App.Placement(App.Vector(0, 0, -4), App.Rotation())
sketch7.addGeometry(Part.Circle(App.Vector(-24.4, -31.4, 0), App.Vector(0, 0, 1), 4.4), False)
sketch7.addGeometry(Part.Circle(App.Vector(-24.4, -31.4, 0), App.Vector(0, 0, 1), 1.4), False)
sketch7.addGeometry(Part.Circle(App.Vector(-24.4, -86.4, 0), App.Vector(0, 0, 1), 4.4), False)
sketch7.addGeometry(Part.Circle(App.Vector(-24.4, -86.4, 0), App.Vector(0, 0, 1), 1.4), False)
sketch7.addGeometry(Part.Circle(App.Vector(-117.4, -31.4, 0), App.Vector(0, 0, 1), 4.4), False)
sketch7.addGeometry(Part.Circle(App.Vector(-117.4, -31.4, 0), App.Vector(0, 0, 1), 1.4), False)
sketch7.addGeometry(Part.Circle(App.Vector(-117.4, -86.4, 0), App.Vector(0, 0, 1), 4.4), False)
sketch7.addGeometry(Part.Circle(App.Vector(-117.4, -86.4, 0), App.Vector(0, 0, 1), 1.4), False)
sketch7.addConstraint(Sketcher.Constraint("Coincident", 1, 3, 0, 3))
sketch7.addConstraint(Sketcher.Constraint("Coincident", 3, 3, 2, 3))
sketch7.addConstraint(Sketcher.Constraint("Coincident", 5, 3, 4, 3))
sketch7.addConstraint(Sketcher.Constraint("Coincident", 7, 3, 6, 3))
sketch7.addConstraint(Sketcher.Constraint("Equal", 0, 2))
sketch7.addConstraint(Sketcher.Constraint("Equal", 1, 3))
sketch7.addConstraint(Sketcher.Constraint("Equal", 2, 4))
sketch7.addConstraint(Sketcher.Constraint("Equal", 3, 5))
sketch7.addConstraint(Sketcher.Constraint("Equal", 4, 6))
sketch7.addConstraint(Sketcher.Constraint("Equal", 5, 7))
sketch7.addConstraint(Sketcher.Constraint("Horizontal", 1, 3, 4, 3))
sketch7.addConstraint(Sketcher.Constraint("Horizontal", 3, 3, 6, 3))
sketch7.addConstraint(Sketcher.Constraint("Vertical", 1, 3, 2, 3))
sketch7.addConstraint(Sketcher.Constraint("Vertical", 5, 3, 6, 3))
sketch7.addConstraint(Sketcher.Constraint("Diameter", 1, Q("2.8 mm")))
sketch7.addConstraint(Sketcher.Constraint("Diameter", 0, Q("8.8 mm")))
sketch7.addConstraint(Sketcher.Constraint("DistanceY", 2, 3, 0, 3, Q("55 mm")))
sketch7.addConstraint(Sketcher.Constraint("DistanceX", 4, 3, 0, 3, Q("93 mm")))
sketch7.addConstraint(Sketcher.Constraint("DistanceX", 0, 3, -1, 1, Q("24.3876 mm")))
sketch7.addConstraint(Sketcher.Constraint("DistanceY", 0, 3, -1, 1, Q("31.4087 mm")))
pad5 = body.newObject("PartDesign::Pad", "Pad004")
pad5.Profile = sketch7
pad5.Length = 9

# Sketch on XZ plane
sketch8 = body.newObject("Sketcher::SketchObject", "Sketch007")
sketch8.AttachmentSupport = (doc.getObject("XZ_Plane"), [""])
sketch8.MapMode = "FlatFace"
sketch8.AttachmentOffset = App.Placement(App.Vector(0, 0, -4), App.Rotation())
sketch8.addGeometry(Part.LineSegment(App.Vector(-23.4, -82.4, 0), App.Vector(-118.4, -82.4, 0)), False)
sketch8.addGeometry(Part.ArcOfCircle(Part.Circle(App.Vector(-118.4, -77.9, 0), App.Vector(0, 0, 1), 4.5), math.radians(180), math.radians(270)), False)
sketch8.addGeometry(Part.LineSegment(App.Vector(-122.9, -77.9, 0), App.Vector(-122.9, -39.9, 0)), False)
sketch8.addGeometry(Part.ArcOfCircle(Part.Circle(App.Vector(-118.4, -39.9, 0), App.Vector(0, 0, 1), 4.5), math.radians(90), math.radians(180)), False)
sketch8.addGeometry(Part.LineSegment(App.Vector(-118.4, -35.4, 0), App.Vector(-23.4, -35.4, 0)), False)
sketch8.addGeometry(Part.ArcOfCircle(Part.Circle(App.Vector(-23.4, -39.9, 0), App.Vector(0, 0, 1), 4.5), math.radians(0), math.radians(90)), False)
sketch8.addGeometry(Part.LineSegment(App.Vector(-18.9, -39.9, 0), App.Vector(-18.9, -77.9, 0)), False)
sketch8.addGeometry(Part.ArcOfCircle(Part.Circle(App.Vector(-23.4, -77.9, 0), App.Vector(0, 0, 1), 4.5), math.radians(-90), math.radians(0)), False)
sketch8.addGeometry(Part.ArcOfCircle(Part.Circle(App.Vector(-23.4, -77.9, 0), App.Vector(0, 0, 1), 3.5), math.radians(-90), math.radians(0)), False)
sketch8.addGeometry(Part.LineSegment(App.Vector(-19.9, -77.9, 0), App.Vector(-19.9, -39.9, 0)), False)
sketch8.addGeometry(Part.ArcOfCircle(Part.Circle(App.Vector(-23.4, -39.9, 0), App.Vector(0, 0, 1), 3.5), math.radians(0), math.radians(90)), False)
sketch8.addGeometry(Part.LineSegment(App.Vector(-23.4, -36.4, 0), App.Vector(-118.4, -36.4, 0)), False)
sketch8.addGeometry(Part.ArcOfCircle(Part.Circle(App.Vector(-118.4, -39.9, 0), App.Vector(0, 0, 1), 3.5), math.radians(90), math.radians(180)), False)
sketch8.addGeometry(Part.LineSegment(App.Vector(-121.9, -39.9, 0), App.Vector(-121.9, -77.9, 0)), False)
sketch8.addGeometry(Part.ArcOfCircle(Part.Circle(App.Vector(-118.4, -77.9, 0), App.Vector(0, 0, 1), 3.5), math.radians(180), math.radians(270)), False)
sketch8.addGeometry(Part.LineSegment(App.Vector(-118.4, -81.4, 0), App.Vector(-23.4, -81.4, 0)), False)
sketch8.addConstraint(Sketcher.Constraint("Tangent", 0, 2, 1, 2))
sketch8.addConstraint(Sketcher.Constraint("Tangent", 1, 1, 2, 1))
sketch8.addConstraint(Sketcher.Constraint("Tangent", 2, 2, 3, 2))
sketch8.addConstraint(Sketcher.Constraint("Tangent", 3, 1, 4, 1))
sketch8.addConstraint(Sketcher.Constraint("Tangent", 4, 2, 5, 2))
sketch8.addConstraint(Sketcher.Constraint("Tangent", 5, 1, 6, 1))
sketch8.addConstraint(Sketcher.Constraint("Tangent", 6, 2, 7, 2))
sketch8.addConstraint(Sketcher.Constraint("Tangent", 7, 1, 0, 1))
sketch8.addConstraint(Sketcher.Constraint("Tangent", 8, 2, 9, 1))
sketch8.addConstraint(Sketcher.Constraint("Tangent", 9, 2, 10, 1))
sketch8.addConstraint(Sketcher.Constraint("Tangent", 10, 2, 11, 1))
sketch8.addConstraint(Sketcher.Constraint("Tangent", 11, 2, 12, 1))
sketch8.addConstraint(Sketcher.Constraint("Tangent", 12, 2, 13, 1))
sketch8.addConstraint(Sketcher.Constraint("Tangent", 13, 2, 14, 1))
sketch8.addConstraint(Sketcher.Constraint("Tangent", 14, 2, 15, 1))
sketch8.addConstraint(Sketcher.Constraint("Tangent", 15, 2, 8, 1))
sketch8.addConstraint(Sketcher.Constraint("Horizontal", 0))
sketch8.addConstraint(Sketcher.Constraint("Vertical", 2))
sketch8.addConstraint(Sketcher.Constraint("Horizontal", 4))
sketch8.addConstraint(Sketcher.Constraint("Vertical", 6))
sketch8.addConstraint(Sketcher.Constraint("Vertical", 9))
sketch8.addConstraint(Sketcher.Constraint("Horizontal", 11))
sketch8.addConstraint(Sketcher.Constraint("Vertical", 13))
sketch8.addConstraint(Sketcher.Constraint("Horizontal", 15))
sketch8.addConstraint(Sketcher.Constraint("Coincident", 8, 3, 7, 3))
sketch8.addConstraint(Sketcher.Constraint("Coincident", 10, 3, 5, 3))
sketch8.addConstraint(Sketcher.Constraint("Coincident", 12, 3, 3, 3))
sketch8.addConstraint(Sketcher.Constraint("Equal", 1, 3))
sketch8.addConstraint(Sketcher.Constraint("Equal", 3, 5))
sketch8.addConstraint(Sketcher.Constraint("Equal", 5, 7))
sketch8.addConstraint(Sketcher.Constraint("Equal", 12, 14))
sketch8.addConstraint(Sketcher.Constraint("DistanceX", 8, 2, 6, 2, Q("1 mm")))
sketch8.addConstraint(Sketcher.Constraint("Radius", 1, Q("4.5 mm")))
sketch8.addConstraint(Sketcher.Constraint("DistanceX", 0, 2, 0, 1, Q("95 mm")))
sketch8.addConstraint(Sketcher.Constraint("DistanceY", 2, 1, 2, 2, Q("38 mm")))
sketch8.addConstraint(Sketcher.Constraint("DistanceX", 1, 3, -1, 1, Q("118.3876 mm")))
sketch8.addConstraint(Sketcher.Constraint("DistanceY", 1, 3, -1, 1, Q("77.9087 mm")))
pocket3 = body.newObject("PartDesign::Pocket", "Pocket002")
pocket3.Profile = sketch8
pocket3.Length = 0.6
pocket3.Reversed = True

doc.recompute()
